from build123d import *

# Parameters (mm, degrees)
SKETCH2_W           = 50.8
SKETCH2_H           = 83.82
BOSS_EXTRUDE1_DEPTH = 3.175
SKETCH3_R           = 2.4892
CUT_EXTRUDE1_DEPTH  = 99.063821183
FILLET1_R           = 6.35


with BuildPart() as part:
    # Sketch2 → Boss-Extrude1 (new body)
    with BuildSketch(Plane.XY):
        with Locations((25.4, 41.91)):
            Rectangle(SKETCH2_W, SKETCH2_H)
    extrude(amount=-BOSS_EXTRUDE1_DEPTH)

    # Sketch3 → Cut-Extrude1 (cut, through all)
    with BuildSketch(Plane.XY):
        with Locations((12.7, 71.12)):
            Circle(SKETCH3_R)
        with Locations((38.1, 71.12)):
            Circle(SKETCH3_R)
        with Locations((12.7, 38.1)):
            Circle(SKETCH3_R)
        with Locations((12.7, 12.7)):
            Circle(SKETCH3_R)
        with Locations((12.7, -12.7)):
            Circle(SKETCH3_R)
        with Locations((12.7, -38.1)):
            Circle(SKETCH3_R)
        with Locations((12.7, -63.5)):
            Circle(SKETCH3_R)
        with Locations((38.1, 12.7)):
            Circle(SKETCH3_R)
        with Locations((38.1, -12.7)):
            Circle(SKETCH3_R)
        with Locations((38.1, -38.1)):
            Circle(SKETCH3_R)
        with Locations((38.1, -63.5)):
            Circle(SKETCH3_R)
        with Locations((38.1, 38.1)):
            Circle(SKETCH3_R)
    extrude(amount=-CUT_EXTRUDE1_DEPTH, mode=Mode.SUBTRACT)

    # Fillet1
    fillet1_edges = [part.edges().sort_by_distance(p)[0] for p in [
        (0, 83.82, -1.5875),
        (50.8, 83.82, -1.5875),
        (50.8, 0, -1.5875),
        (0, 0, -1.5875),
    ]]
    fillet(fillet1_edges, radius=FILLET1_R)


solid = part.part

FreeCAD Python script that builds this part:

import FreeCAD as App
import Part
import Sketcher
from FreeCAD import Vector
Q = App.Units.Quantity


def edges_at(feature, points):
    """Names of the edges that pass closest to the given points."""
    edges = feature.Shape.Edges
    near = lambda p: min(range(len(edges)), key=lambda i: edges[i].distToShape(Part.Vertex(*p))[0])
    return sorted({f"Edge{near(p) + 1}" for p in points})


def add_polygon(sketch, points):
    """Adds a closed chain of lines whose ends are joined by coincident constraints."""
    first, n = sketch.GeometryCount, len(points)
    for a, b in zip(points, points[1:] + points[:1]):
        sketch.addGeometry(Part.LineSegment(App.Vector(*a, 0), App.Vector(*b, 0)), False)
    for i in range(n):
        sketch.addConstraint(Sketcher.Constraint("Coincident", first + i, 2, first + (i + 1) % n, 1))

doc = App.newDocument("Part")
body = doc.addObject("PartDesign::Body", "Body")

# Sketch on XY plane
sketch1 = body.newObject("Sketcher::SketchObject", "Sketch")
sketch1.AttachmentSupport = (doc.getObject("XY_Plane"), [""])
sketch1.MapMode = "FlatFace"
add_polygon(sketch1, [(0, 84), (0, 0), (51, 0), (51, 84)])  # lines 0-3
sketch1.addConstraint(Sketcher.Constraint("Vertical", 0))
sketch1.addConstraint(Sketcher.Constraint("Horizontal", 1))
sketch1.addConstraint(Sketcher.Constraint("Vertical", 2))
sketch1.addConstraint(Sketcher.Constraint("Horizontal", 3))
sketch1.addConstraint(Sketcher.Constraint("Coincident", 0, 2, -1, 1))
sketch1.addConstraint(Sketcher.Constraint("DistanceX", 1, 1, 1, 2, Q("2 in")))
sketch1.addConstraint(Sketcher.Constraint("DistanceY", 0, 2, 0, 1, Q("3.3 in")))
pad1 = body.newObject("PartDesign::Pad", "Pad")
pad1.Profile = sketch1
pad1.Length = Q("0.125 in")
pad1.Reversed = True

# Sketch on XY plane
sketch2 = body.newObject("Sketcher::SketchObject", "Sketch001")
sketch2.AttachmentSupport = (doc.getObject("XY_Plane"), [""])
sketch2.MapMode = "FlatFace"
sketch2.addGeometry(Part.Circle(Vector(12.7, 71.1, 0), Vector(0, 0, 1), 2.5), False)
sketch2.addGeometry(Part.Circle(Vector(38.1, 71.1, 0), Vector(0, 0, 1), 2.5), False)
sketch2.addGeometry(Part.Circle(Vector(12.7, 38.1, 0), Vector(0, 0, 1), 2.5), False)
sketch2.addGeometry(Part.Circle(Vector(12.7, 12.7, 0), Vector(0, 0, 1), 2.5), False)
sketch2.addGeometry(Part.Circle(Vector(12.7, -12.7, 0), Vector(0, 0, 1), 2.5), False)
sketch2.addGeometry(Part.Circle(Vector(12.7, -38.1, 0), Vector(0, 0, 1), 2.5), False)
sketch2.addGeometry(Part.Circle(Vector(12.7, -63.5, 0), Vector(0, 0, 1), 2.5), False)
sketch2.addGeometry(Part.Circle(Vector(38.1, 12.7, 0), Vector(0, 0, 1), 2.5), False)
sketch2.addGeometry(Part.Circle(Vector(38.1, -12.7, 0), Vector(0, 0, 1), 2.5), False)
sketch2.addGeometry(Part.Circle(Vector(38.1, -38.1, 0), Vector(0, 0, 1), 2.5), False)
sketch2.addGeometry(Part.Circle(Vector(38.1, -63.5, 0), Vector(0, 0, 1), 2.5), False)
sketch2.addGeometry(Part.Circle(Vector(38.1, 38.1, 0), Vector(0, 0, 1), 2.5), False)
sketch2.addConstraint(Sketcher.Constraint("Equal", 0, 1))
sketch2.addConstraint(Sketcher.Constraint("Equal", 1, 2))
sketch2.addConstraint(Sketcher.Constraint("Equal", 2, 3))
sketch2.addConstraint(Sketcher.Constraint("Equal", 3, 4))
sketch2.addConstraint(Sketcher.Constraint("Equal", 4, 5))
sketch2.addConstraint(Sketcher.Constraint("Equal", 5, 6))
sketch2.addConstraint(Sketcher.Constraint("Equal", 6, 7))
sketch2.addConstraint(Sketcher.Constraint("Equal", 7, 8))
sketch2.addConstraint(Sketcher.Constraint("Equal", 8, 9))
sketch2.addConstraint(Sketcher.Constraint("Equal", 9, 10))
sketch2.addConstraint(Sketcher.Constraint("Equal", 10, 11))
sketch2.addConstraint(Sketcher.Constraint("Symmetric", 3, 3, 4, 3, -1))
sketch2.addConstraint(Sketcher.Constraint("Symmetric", 2, 3, 5, 3, -1))
sketch2.addConstraint(Sketcher.Constraint("Symmetric", 7, 3, 8, 3, -1))
sketch2.addConstraint(Sketcher.Constraint("Symmetric", 9, 3, 11, 3, -1))
sketch2.addConstraint(Sketcher.Constraint("Horizontal", 0, 3, 1, 3))
sketch2.addConstraint(Sketcher.Constraint("Horizontal", 3, 3, 7, 3))
sketch2.addConstraint(Sketcher.Constraint("Horizontal", 5, 3, 9, 3))
sketch2.addConstraint(Sketcher.Constraint("Horizontal", 6, 3, 10, 3))
sketch2.addConstraint(Sketcher.Constraint("Vertical", 0, 3, 2, 3))
sketch2.addConstraint(Sketcher.Constraint("Vertical", 2, 3, 3, 3))
sketch2.addConstraint(Sketcher.Constraint("Vertical", 5, 3, 6, 3))
sketch2.addConstraint(Sketcher.Constraint("Vertical", 1, 3, 7, 3))
sketch2.addConstraint(Sketcher.Constraint("Vertical", 8, 3, 9, 3))
sketch2.addConstraint(Sketcher.Constraint("Vertical", 9, 3, 10, 3))
sketch2.addConstraint(Sketcher.Constraint("Diameter", 0, Q("0.196 in")))
sketch2.addConstraint(Sketcher.Constraint("DistanceX", 0, 3, 1, 3, Q("1 in")))
sketch2.addConstraint(Sketcher.Constraint("DistanceY", 3, 3, 2, 3, Q("1 in")))
sketch2.addConstraint(Sketcher.Constraint("DistanceY", 4, 3, 3, 3, Q("1 in")))
sketch2.addConstraint(Sketcher.Constraint("DistanceY", 6, 3, 5, 3, Q("1 in")))
sketch2.addConstraint(Sketcher.Constraint("DistanceX", -1, 1, 0, 3, Q("0.5 in")))
sketch2.addConstraint(Sketcher.Constraint("DistanceY", -1, 1, 0, 3, Q("2.8 in")))
pocket1 = body.newObject("PartDesign::Pocket", "Pocket")
pocket1.Profile = sketch2
pocket1.Type = "ThroughAll"
doc.recompute()

fillet = body.newObject("PartDesign::Fillet", "Fillet")
fillet.Base = (pocket1, edges_at(pocket1, [
    (0, 83.82, -1.587),
    (50.8, 83.82, -1.587),
    (50.8, 0, -1.587),
    (0, 0, -1.587),
]))
fillet.Radius = Q("0.25 in")

doc.recompute()
